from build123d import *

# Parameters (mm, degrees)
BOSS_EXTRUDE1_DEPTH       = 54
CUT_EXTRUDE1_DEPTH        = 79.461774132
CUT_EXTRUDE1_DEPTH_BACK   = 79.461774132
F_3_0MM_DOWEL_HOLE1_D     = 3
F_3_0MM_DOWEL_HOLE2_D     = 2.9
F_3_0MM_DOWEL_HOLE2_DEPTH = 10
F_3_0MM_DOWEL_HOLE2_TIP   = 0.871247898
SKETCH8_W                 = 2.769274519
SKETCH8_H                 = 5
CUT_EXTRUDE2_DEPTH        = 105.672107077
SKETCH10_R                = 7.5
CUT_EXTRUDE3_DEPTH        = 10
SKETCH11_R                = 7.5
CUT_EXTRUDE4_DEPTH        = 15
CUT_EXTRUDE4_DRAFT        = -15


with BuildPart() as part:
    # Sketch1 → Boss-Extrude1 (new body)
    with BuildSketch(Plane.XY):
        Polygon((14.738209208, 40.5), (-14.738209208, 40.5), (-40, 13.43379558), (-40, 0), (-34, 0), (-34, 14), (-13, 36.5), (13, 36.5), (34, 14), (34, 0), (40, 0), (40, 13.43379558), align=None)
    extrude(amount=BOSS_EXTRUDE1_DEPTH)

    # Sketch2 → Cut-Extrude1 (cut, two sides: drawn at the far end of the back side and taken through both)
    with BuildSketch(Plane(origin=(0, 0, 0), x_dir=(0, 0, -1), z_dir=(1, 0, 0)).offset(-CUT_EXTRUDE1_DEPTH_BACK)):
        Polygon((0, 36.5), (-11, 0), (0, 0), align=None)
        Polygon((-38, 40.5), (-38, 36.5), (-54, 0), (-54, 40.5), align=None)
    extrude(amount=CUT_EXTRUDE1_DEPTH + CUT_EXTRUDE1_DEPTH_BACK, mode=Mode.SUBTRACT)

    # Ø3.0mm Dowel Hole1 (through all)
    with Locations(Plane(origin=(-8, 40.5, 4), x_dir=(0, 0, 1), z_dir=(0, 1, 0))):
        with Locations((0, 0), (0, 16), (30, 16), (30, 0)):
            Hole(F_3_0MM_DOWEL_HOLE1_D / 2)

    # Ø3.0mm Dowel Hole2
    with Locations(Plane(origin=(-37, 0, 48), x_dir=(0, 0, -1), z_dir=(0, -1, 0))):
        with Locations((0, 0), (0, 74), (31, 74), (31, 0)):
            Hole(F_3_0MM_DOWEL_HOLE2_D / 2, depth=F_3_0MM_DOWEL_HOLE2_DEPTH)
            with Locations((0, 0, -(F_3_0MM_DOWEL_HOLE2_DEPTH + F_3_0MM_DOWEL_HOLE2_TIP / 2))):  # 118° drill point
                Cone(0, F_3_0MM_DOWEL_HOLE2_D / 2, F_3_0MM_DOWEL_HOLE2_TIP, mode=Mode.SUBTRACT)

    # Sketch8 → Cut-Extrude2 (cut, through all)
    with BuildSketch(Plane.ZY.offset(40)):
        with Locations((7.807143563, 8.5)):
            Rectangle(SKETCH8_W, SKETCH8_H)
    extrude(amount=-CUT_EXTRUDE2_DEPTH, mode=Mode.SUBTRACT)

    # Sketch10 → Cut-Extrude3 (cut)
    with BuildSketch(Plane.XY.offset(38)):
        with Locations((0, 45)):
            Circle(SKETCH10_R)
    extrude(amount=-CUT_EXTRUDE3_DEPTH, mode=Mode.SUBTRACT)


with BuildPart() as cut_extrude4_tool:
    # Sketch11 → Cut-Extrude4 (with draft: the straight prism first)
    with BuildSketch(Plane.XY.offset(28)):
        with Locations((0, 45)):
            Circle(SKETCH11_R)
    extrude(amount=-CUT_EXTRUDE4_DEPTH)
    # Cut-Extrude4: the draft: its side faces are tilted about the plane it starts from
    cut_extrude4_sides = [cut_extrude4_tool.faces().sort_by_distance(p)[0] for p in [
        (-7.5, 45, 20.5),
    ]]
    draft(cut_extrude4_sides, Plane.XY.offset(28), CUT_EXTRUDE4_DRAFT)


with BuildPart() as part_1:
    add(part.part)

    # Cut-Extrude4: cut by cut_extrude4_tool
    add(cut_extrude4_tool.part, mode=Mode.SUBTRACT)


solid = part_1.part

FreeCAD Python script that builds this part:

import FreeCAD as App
import Part
import Sketcher
from FreeCAD import Vector


def faces_at(feature, points):
    """Names of the faces that lie closest to the given points."""
    faces = feature.Shape.Faces
    near = lambda p: min(range(len(faces)), key=lambda i: faces[i].distToShape(Part.Vertex(*p))[0])
    return sorted({f"Face{near(p) + 1}" for p in points})

doc = App.newDocument("Part")
body = doc.addObject("PartDesign::Body", "Body")

sketch1 = doc.addObject("Sketcher::SketchObject", "Sketch")
body.addObject(sketch1)
sketch1.AttachmentSupport = (doc.XY_Plane, [""])
sketch1.MapMode = "FlatFace"
sketch1.addGeometry([
    Part.LineSegment(Vector(15, 40, 0), Vector(-15, 40, 0)),
    Part.LineSegment(Vector(-15, 40, 0), Vector(-40, 13, 0)),
    Part.LineSegment(Vector(-40, 13, 0), Vector(-40, 0, 0)),
    Part.LineSegment(Vector(-40, 0, 0), Vector(-34, 0, 0)),
    Part.LineSegment(Vector(-34, 0, 0), Vector(-34, 14, 0)),
    Part.LineSegment(Vector(-34, 14, 0), Vector(-13, 36, 0)),
    Part.LineSegment(Vector(-13, 36, 0), Vector(13, 36, 0)),
    Part.LineSegment(Vector(13, 36, 0), Vector(34, 14, 0)),
    Part.LineSegment(Vector(34, 14, 0), Vector(34, 0, 0)),
    Part.LineSegment(Vector(34, 0, 0), Vector(40, 0, 0)),
    Part.LineSegment(Vector(40, 0, 0), Vector(40, 13, 0)),
    Part.LineSegment(Vector(40, 13, 0), Vector(15, 40, 0)),
], False)
sketch1.addConstraint([
    Sketcher.Constraint("Coincident", 0, 2, 1, 1),
    Sketcher.Constraint("Coincident", 1, 2, 2, 1),
    Sketcher.Constraint("Coincident", 2, 2, 3, 1),
    Sketcher.Constraint("Coincident", 3, 2, 4, 1),
    Sketcher.Constraint("Coincident", 4, 2, 5, 1),
    Sketcher.Constraint("Coincident", 5, 2, 6, 1),
    Sketcher.Constraint("Coincident", 6, 2, 7, 1),
    Sketcher.Constraint("Coincident", 7, 2, 8, 1),
    Sketcher.Constraint("Coincident", 8, 2, 9, 1),
    Sketcher.Constraint("Coincident", 9, 2, 10, 1),
    Sketcher.Constraint("Coincident", 10, 2, 11, 1),
    Sketcher.Constraint("Coincident", 11, 2, 0, 1),
    Sketcher.Constraint("Horizontal", 0),
    Sketcher.Constraint("Vertical", 2),
    Sketcher.Constraint("Horizontal", 3),
    Sketcher.Constraint("Vertical", 4),
    Sketcher.Constraint("Horizontal", 6),
    Sketcher.Constraint("Vertical", 8),
    Sketcher.Constraint("Horizontal", 9),
    Sketcher.Constraint("Vertical", 10),
    Sketcher.Constraint("Symmetric", 3, 2, 8, 2, -1, 1),
    Sketcher.Constraint("Symmetric", 2, 2, 9, 2, -2),
    Sketcher.Constraint("Parallel", 1, 5),
    Sketcher.Constraint("Parallel", 7, 11),
    Sketcher.Constraint("Horizontal", 4, 2, 7, 2),
    Sketcher.Constraint("Horizontal", 1, 2, 10, 2),
    Sketcher.Constraint("Equal", 5, 7),
    Sketcher.Constraint("DistanceX", 3, 1, 3, 2, 6.0),
    Sketcher.Constraint("DistanceX", 6, 1, 6, 2, 26.0),
    Sketcher.Constraint("DistanceY", 4, 1, 4, 2, 14.0),
    Sketcher.Constraint("DistanceX", 1, 2, -1, 1, 40.0),
    Sketcher.Constraint("DistanceY", 5, 2, 0, 2, 4.0),
    Sketcher.Constraint("DistanceY", -1, 1, 0, 2, 40.5),
    Sketcher.Constraint("DistanceX", 0, 2, 0, 1, 29.476418),
])
pad1 = doc.addObject("PartDesign::Pad", "Pad")
body.addObject(pad1)
pad1.Profile = sketch1
pad1.Length = 54

sketch2 = doc.addObject("Sketcher::SketchObject", "Sketch001")
body.addObject(sketch2)
sketch2.AttachmentSupport = (doc.YZ_Plane, [""])
sketch2.MapMode = "FlatFace"
sketch2.addGeometry([
    Part.LineSegment(Vector(36.5, 0, 0), Vector(0, 11, 0)),
    Part.LineSegment(Vector(0, 11, 0), Vector(0, 0, 0)),
    Part.LineSegment(Vector(0, 0, 0), Vector(36.5, 0, 0)),
    Part.LineSegment(Vector(36.5, 38, 0), Vector(40.5, 38, 0)),
    Part.LineSegment(Vector(40.5, 38, 0), Vector(40.5, 54, 0)),
    Part.LineSegment(Vector(40.5, 54, 0), Vector(0, 54, 0)),
    Part.LineSegment(Vector(0, 54, 0), Vector(36.5, 38, 0)),
], False)
sketch2.addConstraint([
    Sketcher.Constraint("Coincident", 0, 2, 1, 1),
    Sketcher.Constraint("Coincident", 1, 2, 2, 1),
    Sketcher.Constraint("Coincident", 2, 2, 0, 1),
    Sketcher.Constraint("Coincident", 3, 2, 4, 1),
    Sketcher.Constraint("Coincident", 4, 2, 5, 1),
    Sketcher.Constraint("Coincident", 5, 2, 6, 1),
    Sketcher.Constraint("Coincident", 6, 2, 3, 1),
    Sketcher.Constraint("Vertical", 1),
    Sketcher.Constraint("Horizontal", 2),
    Sketcher.Constraint("Horizontal", 3),
    Sketcher.Constraint("Vertical", 4),
    Sketcher.Constraint("Horizontal", 5),
    Sketcher.Constraint("Coincident", 1, 2, -1, 1),
    Sketcher.Constraint("PointOnObject", 5, 2, -2),
    Sketcher.Constraint("Vertical", 2, 2, 6, 2),
    Sketcher.Constraint("DistanceX", 3, 1, 3, 2, 4.0),
    Sketcher.Constraint("DistanceY", 1, 2, 1, 1, 11.0),
    Sketcher.Constraint("DistanceY", 4, 1, 4, 2, 16.0),
    Sketcher.Constraint("DistanceX", 2, 1, 2, 2, 36.5),
    Sketcher.Constraint("DistanceY", -1, 1, 3, 2, 38.0),
])
pocket1 = doc.addObject("PartDesign::Pocket", "Pocket")
body.addObject(pocket1)
pocket1.Profile = sketch2
pocket1.Type = "ThroughAll"
pocket1.Midplane = True

sketch3 = doc.addObject("Sketcher::SketchObject", "Sketch002")
body.addObject(sketch3)
sketch3.AttachmentSupport = (doc.XZ_Plane, [""])
sketch3.MapMode = "FlatFace"
sketch3.AttachmentOffset = App.Placement(Vector(0, 0, -40.5), App.Rotation())
sketch3.addGeometry([
    Part.Circle(Vector(-8, 4, 0), Vector(0, 0, 1), 1.5),
    Part.Circle(Vector(8, 4, 0), Vector(0, 0, 1), 1.5),
    Part.Circle(Vector(8, 34, 0), Vector(0, 0, 1), 1.5),
    Part.Circle(Vector(-8, 34, 0), Vector(0, 0, 1), 1.5),
], False)
sketch3.addConstraint([
    Sketcher.Constraint("Equal", 0, 1),
    Sketcher.Constraint("Equal", 1, 2),
    Sketcher.Constraint("Equal", 2, 3),
    Sketcher.Constraint("Symmetric", 0, 3, 1, 3, -2),
    Sketcher.Constraint("Symmetric", 2, 3, 3, 3, -2),
    Sketcher.Constraint("Vertical", 1, 3, 2, 3),
    Sketcher.Constraint("Diameter", 0, 3.0),
    Sketcher.Constraint("DistanceX", 0, 3, -1, 1, 8.0),
    Sketcher.Constraint("DistanceY", -1, 1, 0, 3, 4.0),
    Sketcher.Constraint("DistanceY", -1, 1, 2, 3, 34.0),
])
doc.recompute()
hole = doc.addObject("PartDesign::Hole", "Hole")
body.addObject(hole)
hole.Profile = sketch3
hole.ThreadType = "None"
hole.Diameter = 3
hole.DepthType = "ThroughAll"
hole.Reversed = True

sketch4 = doc.addObject("Sketcher::SketchObject", "Sketch003")
body.addObject(sketch4)
sketch4.AttachmentSupport = (doc.XZ_Plane, [""])
sketch4.MapMode = "FlatFace"
sketch4.addGeometry([
    Part.Circle(Vector(-37, 48, 0), Vector(0, 0, 1), 1.4),
    Part.Circle(Vector(37, 48, 0), Vector(0, 0, 1), 1.4),
    Part.Circle(Vector(37, 17, 0), Vector(0, 0, 1), 1.4),
    Part.Circle(Vector(-37, 17, 0), Vector(0, 0, 1), 1.4),
], False)
sketch4.addConstraint([
    Sketcher.Constraint("Equal", 0, 1),
    Sketcher.Constraint("Equal", 1, 2),
    Sketcher.Constraint("Equal", 2, 3),
    Sketcher.Constraint("Symmetric", 0, 3, 1, 3, -2),
    Sketcher.Constraint("Symmetric", 2, 3, 3, 3, -2),
    Sketcher.Constraint("Vertical", 1, 3, 2, 3),
    Sketcher.Constraint("Diameter", 0, 2.9),
    Sketcher.Constraint("DistanceX", 0, 3, -1, 1, 37.0),
    Sketcher.Constraint("DistanceY", -1, 1, 0, 3, 48.0),
    Sketcher.Constraint("DistanceY", -1, 1, 2, 3, 17.0),
])
doc.recompute()
hole2 = doc.addObject("PartDesign::Hole", "Hole001")
body.addObject(hole2)
hole2.Profile = sketch4
hole2.ThreadType = "None"
hole2.Diameter = 2.9
hole2.DepthType = "Dimension"
hole2.Depth = 10
hole2.DrillPoint = "Angled"
hole2.DrillPointAngle = 118

sketch5 = doc.addObject("Sketcher::SketchObject", "Sketch004")
body.addObject(sketch5)
sketch5.AttachmentSupport = (doc.YZ_Plane, [""])
sketch5.MapMode = "FlatFace"
sketch5.AttachmentOffset = App.Placement(Vector(0, 0, -40), App.Rotation())
sketch5.addGeometry([
    Part.LineSegment(Vector(11, 6.4, 0), Vector(6, 6.4, 0)),
    Part.LineSegment(Vector(6, 6.4, 0), Vector(6, 9.2, 0)),
    Part.LineSegment(Vector(6, 9.2, 0), Vector(11, 9.2, 0)),
    Part.LineSegment(Vector(11, 9.2, 0), Vector(11, 6.4, 0)),
], False)
sketch5.addConstraint([
    Sketcher.Constraint("Coincident", 0, 2, 1, 1),
    Sketcher.Constraint("Coincident", 1, 2, 2, 1),
    Sketcher.Constraint("Coincident", 2, 2, 3, 1),
    Sketcher.Constraint("Coincident", 3, 2, 0, 1),
    Sketcher.Constraint("Horizontal", 0),
    Sketcher.Constraint("Vertical", 1),
    Sketcher.Constraint("Horizontal", 2),
    Sketcher.Constraint("Vertical", 3),
    Sketcher.Constraint("DistanceX", 0, 2, 0, 1, 5.0),
    Sketcher.Constraint("DistanceX", -1, 1, 0, 2, 6.0),
    Sketcher.Constraint("DistanceY", 1, 1, 1, 2, 2.769275),
    Sketcher.Constraint("DistanceY", -1, 1, 1, 2, 9.191781),
])
pocket2 = doc.addObject("PartDesign::Pocket", "Pocket001")
body.addObject(pocket2)
pocket2.Profile = sketch5
pocket2.Type = "ThroughAll"
pocket2.Reversed = True

sketch6 = doc.addObject("Sketcher::SketchObject", "Sketch005")
body.addObject(sketch6)
sketch6.AttachmentSupport = (doc.XY_Plane, [""])
sketch6.MapMode = "FlatFace"
sketch6.AttachmentOffset = App.Placement(Vector(0, 0, 38), App.Rotation())
sketch6.addGeometry(Part.Circle(Vector(0, 45, 0), Vector(0, 0, 1), 8), False)
sketch6.addConstraint([
    Sketcher.Constraint("PointOnObject", 0, 3, -2),
    Sketcher.Constraint("Diameter", 0, 15.0),
    Sketcher.Constraint("DistanceY", -1, 1, 0, 3, 45.0),
])
pocket3 = doc.addObject("PartDesign::Pocket", "Pocket002")
body.addObject(pocket3)
pocket3.Profile = sketch6
pocket3.Length = 10
body2 = doc.addObject("PartDesign::Body", "Body001")

sketch7 = doc.addObject("Sketcher::SketchObject", "Sketch006")
body2.addObject(sketch7)
sketch7.AttachmentSupport = (doc.getObject("XY_Plane001"), [""])
sketch7.MapMode = "FlatFace"
sketch7.AttachmentOffset = App.Placement(Vector(0, 0, 28), App.Rotation())
sketch7.addGeometry(Part.Circle(Vector(0, 45, 0), Vector(0, 0, 1), 8), False)
sketch7.addConstraint([
    Sketcher.Constraint("PointOnObject", 0, 3, -2),
    Sketcher.Constraint("Diameter", 0, 15.0),
    Sketcher.Constraint("DistanceY", -1, 1, 0, 3, 45.0),
])
pad2 = doc.addObject("PartDesign::Pad", "Pad001")
body2.addObject(pad2)
pad2.Profile = sketch7
pad2.Length = 15
pad2.Reversed = True
doc.recompute()

datumplane = doc.addObject("PartDesign::Plane", "DatumPlane")
body2.addObject(datumplane)
datumplane.AttachmentSupport = (doc.getObject("XY_Plane001"), [""])
datumplane.MapMode = "FlatFace"
datumplane.AttachmentOffset = App.Placement(Vector(0, 0, 28), App.Rotation())
draft = doc.addObject("PartDesign::Draft", "Draft")
body2.addObject(draft)
draft.Base = (pad2, faces_at(pad2, [(-7.5, 45, 20.5)]))
draft.NeutralPlane = (datumplane, [""])
draft.Angle = 15
draft.Reversed = True
doc.recompute()

boolean = doc.addObject("PartDesign::Boolean", "Boolean")
body.addObject(boolean)
boolean.Type = "Cut"
boolean.addObjects([body2])

doc.recompute()
